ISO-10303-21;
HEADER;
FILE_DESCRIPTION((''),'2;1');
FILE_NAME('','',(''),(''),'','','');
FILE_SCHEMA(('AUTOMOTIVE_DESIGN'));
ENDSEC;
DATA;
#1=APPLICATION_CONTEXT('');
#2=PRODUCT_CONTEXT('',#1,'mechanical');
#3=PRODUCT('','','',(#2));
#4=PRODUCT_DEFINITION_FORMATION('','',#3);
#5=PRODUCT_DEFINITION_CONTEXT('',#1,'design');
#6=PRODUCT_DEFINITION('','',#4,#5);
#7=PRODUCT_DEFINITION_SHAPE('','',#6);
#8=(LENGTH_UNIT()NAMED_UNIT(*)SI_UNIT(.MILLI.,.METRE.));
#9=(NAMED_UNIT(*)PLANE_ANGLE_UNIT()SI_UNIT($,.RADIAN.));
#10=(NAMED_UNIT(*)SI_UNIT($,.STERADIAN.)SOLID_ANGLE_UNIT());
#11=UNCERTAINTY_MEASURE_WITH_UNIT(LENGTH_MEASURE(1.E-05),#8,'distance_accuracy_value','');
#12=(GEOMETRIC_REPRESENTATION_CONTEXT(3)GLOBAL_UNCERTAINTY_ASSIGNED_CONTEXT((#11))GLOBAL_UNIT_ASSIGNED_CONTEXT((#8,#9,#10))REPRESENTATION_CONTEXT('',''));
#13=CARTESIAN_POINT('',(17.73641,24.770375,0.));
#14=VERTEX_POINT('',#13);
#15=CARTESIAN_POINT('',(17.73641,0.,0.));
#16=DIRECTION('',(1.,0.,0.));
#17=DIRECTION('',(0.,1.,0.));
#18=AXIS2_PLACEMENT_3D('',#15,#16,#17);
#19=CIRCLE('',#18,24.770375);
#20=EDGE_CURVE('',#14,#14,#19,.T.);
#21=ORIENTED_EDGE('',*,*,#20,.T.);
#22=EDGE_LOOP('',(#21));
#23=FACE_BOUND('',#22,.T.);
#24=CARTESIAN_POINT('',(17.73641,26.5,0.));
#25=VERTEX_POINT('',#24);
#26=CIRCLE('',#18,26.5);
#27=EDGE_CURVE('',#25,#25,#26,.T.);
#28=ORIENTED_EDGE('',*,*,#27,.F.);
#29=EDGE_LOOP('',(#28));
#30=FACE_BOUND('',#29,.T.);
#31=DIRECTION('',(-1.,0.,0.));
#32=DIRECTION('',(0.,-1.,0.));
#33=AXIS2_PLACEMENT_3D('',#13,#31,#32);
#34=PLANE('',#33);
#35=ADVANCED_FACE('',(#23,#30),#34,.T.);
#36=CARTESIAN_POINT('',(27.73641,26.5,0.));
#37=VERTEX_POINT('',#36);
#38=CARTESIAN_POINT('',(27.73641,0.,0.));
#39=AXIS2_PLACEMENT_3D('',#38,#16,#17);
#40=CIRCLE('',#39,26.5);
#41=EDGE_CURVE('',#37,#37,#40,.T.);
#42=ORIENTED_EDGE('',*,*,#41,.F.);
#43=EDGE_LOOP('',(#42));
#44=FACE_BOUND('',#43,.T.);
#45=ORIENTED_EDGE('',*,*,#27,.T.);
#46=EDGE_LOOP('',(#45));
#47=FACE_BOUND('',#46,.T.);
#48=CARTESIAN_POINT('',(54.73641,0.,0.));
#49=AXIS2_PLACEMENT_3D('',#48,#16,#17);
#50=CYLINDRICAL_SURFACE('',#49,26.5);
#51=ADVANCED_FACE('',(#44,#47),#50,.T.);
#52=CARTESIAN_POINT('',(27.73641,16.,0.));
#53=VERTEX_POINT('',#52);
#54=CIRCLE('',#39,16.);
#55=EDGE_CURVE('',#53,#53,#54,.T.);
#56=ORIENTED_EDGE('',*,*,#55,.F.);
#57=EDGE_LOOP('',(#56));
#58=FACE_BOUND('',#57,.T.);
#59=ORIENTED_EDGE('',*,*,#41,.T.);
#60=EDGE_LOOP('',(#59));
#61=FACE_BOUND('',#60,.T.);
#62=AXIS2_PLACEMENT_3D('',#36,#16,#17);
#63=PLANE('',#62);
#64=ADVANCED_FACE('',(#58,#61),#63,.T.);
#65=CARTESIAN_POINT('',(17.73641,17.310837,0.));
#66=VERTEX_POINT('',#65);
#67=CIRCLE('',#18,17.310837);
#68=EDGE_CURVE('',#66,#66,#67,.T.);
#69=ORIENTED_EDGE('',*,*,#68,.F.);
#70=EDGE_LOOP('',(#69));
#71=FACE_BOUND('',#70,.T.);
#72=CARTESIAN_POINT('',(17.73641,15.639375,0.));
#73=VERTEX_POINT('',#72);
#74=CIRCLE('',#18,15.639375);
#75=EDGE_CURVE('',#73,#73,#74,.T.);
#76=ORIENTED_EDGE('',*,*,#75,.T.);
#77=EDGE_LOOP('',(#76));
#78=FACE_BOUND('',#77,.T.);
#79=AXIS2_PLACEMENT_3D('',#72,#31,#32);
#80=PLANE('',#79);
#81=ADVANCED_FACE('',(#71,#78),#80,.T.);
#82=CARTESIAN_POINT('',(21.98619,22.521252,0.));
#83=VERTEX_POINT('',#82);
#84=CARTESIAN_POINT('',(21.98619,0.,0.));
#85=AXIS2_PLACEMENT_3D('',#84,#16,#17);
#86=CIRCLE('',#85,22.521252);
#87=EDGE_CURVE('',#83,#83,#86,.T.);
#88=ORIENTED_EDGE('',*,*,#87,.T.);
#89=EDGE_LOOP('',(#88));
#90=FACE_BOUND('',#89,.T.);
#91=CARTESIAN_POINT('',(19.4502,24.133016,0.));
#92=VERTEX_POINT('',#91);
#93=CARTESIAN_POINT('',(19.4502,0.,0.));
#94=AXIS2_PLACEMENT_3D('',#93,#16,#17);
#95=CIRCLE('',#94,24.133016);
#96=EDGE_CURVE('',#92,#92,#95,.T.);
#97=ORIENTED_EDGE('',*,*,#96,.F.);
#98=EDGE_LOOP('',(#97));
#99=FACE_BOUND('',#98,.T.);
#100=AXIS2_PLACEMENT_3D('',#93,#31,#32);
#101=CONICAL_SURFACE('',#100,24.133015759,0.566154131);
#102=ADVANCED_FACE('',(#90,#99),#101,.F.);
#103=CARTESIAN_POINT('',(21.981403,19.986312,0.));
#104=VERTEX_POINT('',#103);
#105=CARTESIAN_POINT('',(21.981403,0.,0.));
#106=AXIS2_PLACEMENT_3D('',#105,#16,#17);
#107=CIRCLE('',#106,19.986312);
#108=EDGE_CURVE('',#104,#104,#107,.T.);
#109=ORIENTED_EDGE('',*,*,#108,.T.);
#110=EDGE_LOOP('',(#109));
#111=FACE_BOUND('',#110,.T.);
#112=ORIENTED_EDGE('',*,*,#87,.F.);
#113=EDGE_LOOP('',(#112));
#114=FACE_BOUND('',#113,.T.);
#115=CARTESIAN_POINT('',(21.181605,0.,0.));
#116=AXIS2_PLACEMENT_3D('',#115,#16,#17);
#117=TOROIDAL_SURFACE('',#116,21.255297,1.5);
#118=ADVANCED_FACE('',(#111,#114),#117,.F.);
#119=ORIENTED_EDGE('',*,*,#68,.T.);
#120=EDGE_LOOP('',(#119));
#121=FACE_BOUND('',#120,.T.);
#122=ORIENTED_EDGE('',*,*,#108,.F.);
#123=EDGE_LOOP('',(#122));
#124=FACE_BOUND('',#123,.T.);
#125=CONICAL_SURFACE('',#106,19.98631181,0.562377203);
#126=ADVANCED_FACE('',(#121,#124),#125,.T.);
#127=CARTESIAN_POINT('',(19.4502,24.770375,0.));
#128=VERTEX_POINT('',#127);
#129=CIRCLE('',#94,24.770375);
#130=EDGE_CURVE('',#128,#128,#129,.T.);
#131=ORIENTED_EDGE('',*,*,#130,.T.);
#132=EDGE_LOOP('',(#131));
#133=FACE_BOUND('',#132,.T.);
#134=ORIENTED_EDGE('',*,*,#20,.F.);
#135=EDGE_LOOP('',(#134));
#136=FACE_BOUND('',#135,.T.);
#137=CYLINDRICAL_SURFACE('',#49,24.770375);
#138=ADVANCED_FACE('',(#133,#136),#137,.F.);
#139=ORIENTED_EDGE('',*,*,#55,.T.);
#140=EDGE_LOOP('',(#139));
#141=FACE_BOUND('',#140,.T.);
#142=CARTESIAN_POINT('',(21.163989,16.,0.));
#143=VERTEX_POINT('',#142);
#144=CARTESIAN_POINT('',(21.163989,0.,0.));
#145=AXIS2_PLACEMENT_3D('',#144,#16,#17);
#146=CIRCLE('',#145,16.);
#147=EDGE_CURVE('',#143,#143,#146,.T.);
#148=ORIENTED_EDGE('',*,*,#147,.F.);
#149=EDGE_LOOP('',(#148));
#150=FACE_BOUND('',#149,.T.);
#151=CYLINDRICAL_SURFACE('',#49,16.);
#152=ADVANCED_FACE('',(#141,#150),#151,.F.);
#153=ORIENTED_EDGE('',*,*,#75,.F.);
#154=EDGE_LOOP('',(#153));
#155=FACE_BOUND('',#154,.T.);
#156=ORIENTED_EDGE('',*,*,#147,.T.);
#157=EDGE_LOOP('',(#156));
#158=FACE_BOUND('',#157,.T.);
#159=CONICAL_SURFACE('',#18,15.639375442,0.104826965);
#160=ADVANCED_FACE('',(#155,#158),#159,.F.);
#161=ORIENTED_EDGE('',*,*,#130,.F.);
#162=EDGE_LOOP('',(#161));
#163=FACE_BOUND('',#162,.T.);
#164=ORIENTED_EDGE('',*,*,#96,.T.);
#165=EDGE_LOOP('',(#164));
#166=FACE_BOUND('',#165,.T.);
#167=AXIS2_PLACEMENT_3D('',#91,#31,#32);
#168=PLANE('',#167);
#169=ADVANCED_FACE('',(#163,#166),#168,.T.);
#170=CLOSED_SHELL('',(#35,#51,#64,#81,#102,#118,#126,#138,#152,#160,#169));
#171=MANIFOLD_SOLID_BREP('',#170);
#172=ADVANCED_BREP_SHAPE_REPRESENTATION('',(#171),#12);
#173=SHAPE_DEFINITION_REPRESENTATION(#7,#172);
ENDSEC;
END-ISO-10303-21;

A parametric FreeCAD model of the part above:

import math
import FreeCAD as App
import Part
import Sketcher

doc = App.newDocument("Part")
body = doc.addObject("PartDesign::Body", "Body")

# Sketch on XY plane
sketch1 = body.newObject("Sketcher::SketchObject", "Sketch")
sketch1.AttachmentSupport = (doc.getObject("XY_Plane"), [""])
sketch1.MapMode = "FlatFace"
sketch1.addGeometry([
    Part.LineSegment(App.Vector(27.73641, 26.5, 0), App.Vector(17.73641, 26.5, 0)),  # 0
    Part.LineSegment(App.Vector(17.73641, 26.5, 0), App.Vector(17.73641, 24.770375, 0)),  # 1
    Part.LineSegment(App.Vector(17.73641, 24.770375, 0), App.Vector(19.4502, 24.770375, 0)),  # 2
    Part.LineSegment(App.Vector(19.4502, 24.770375, 0), App.Vector(19.4502, 24.133016, 0)),  # 3
    Part.LineSegment(App.Vector(19.4502, 24.133016, 0), App.Vector(21.98619, 22.521252, 0)),  # 4
    Part.ArcOfCircle(Part.Circle(App.Vector(21.181605, 21.255297, 0), App.Vector(0, 0, 1), 1.5), math.radians(-57.77816), math.radians(57.561758)),  # 5
    Part.LineSegment(App.Vector(21.981403, 19.986312, 0), App.Vector(17.73641, 17.310837, 0)),  # 6
    Part.LineSegment(App.Vector(17.73641, 17.310837, 0), App.Vector(17.73641, 15.639375, 0)),  # 7
    Part.LineSegment(App.Vector(17.73641, 15.639375, 0), App.Vector(21.163989, 16, 0)),  # 8
    Part.LineSegment(App.Vector(21.163989, 16, 0), App.Vector(27.73641, 16, 0)),  # 9
    Part.LineSegment(App.Vector(27.73641, 16, 0), App.Vector(27.73641, 26.5, 0)),  # 10
], False)
sketch1.addConstraint([
    Sketcher.Constraint("Coincident", 0, 2, 1, 1),
    Sketcher.Constraint("Coincident", 1, 2, 2, 1),
    Sketcher.Constraint("Coincident", 2, 2, 3, 1),
    Sketcher.Constraint("Coincident", 3, 2, 4, 1),
    Sketcher.Constraint("Tangent", 4, 2, 5, 2),
    Sketcher.Constraint("Tangent", 5, 1, 6, 1),
    Sketcher.Constraint("Coincident", 6, 2, 7, 1),
    Sketcher.Constraint("Coincident", 7, 2, 8, 1),
    Sketcher.Constraint("Coincident", 8, 2, 9, 1),
    Sketcher.Constraint("Coincident", 9, 2, 10, 1),
    Sketcher.Constraint("Coincident", 10, 2, 0, 1),
    Sketcher.Constraint("Horizontal", 0),
    Sketcher.Constraint("Vertical", 1),
    Sketcher.Constraint("Horizontal", 2),
    Sketcher.Constraint("Vertical", 3),
    Sketcher.Constraint("Vertical", 7),
    Sketcher.Constraint("Horizontal", 9),
    Sketcher.Constraint("Vertical", 10),
    Sketcher.Constraint("Vertical", 1, 2, 6, 2),
    Sketcher.Constraint("Radius", 5, 1.5),
    Sketcher.Constraint("DistanceX", 0, 2, 0, 1, 10.0),
    Sketcher.Constraint("DistanceY", 10, 1, 10, 2, 10.5),
    Sketcher.Constraint("DistanceY", -1, 1, 8, 2, 16.0),
    Sketcher.Constraint("DistanceX", 2, 1, 2, 2, 1.713789),
    Sketcher.Constraint("DistanceX", 9, 1, 9, 2, 6.572421),
    Sketcher.Constraint("DistanceY", 3, 2, 3, 1, 0.637359),
    Sketcher.Constraint("DistanceY", 7, 2, 7, 1, 1.671462),
    Sketcher.Constraint("DistanceX", -1, 1, 2, 2, 19.4502),
    Sketcher.Constraint("DistanceX", 5, 3, 5, 1, 0.799798),
    Sketcher.Constraint("DistanceX", 8, 2, 4, 2, 0.822201),
    Sketcher.Constraint("Distance", 6, 5.017781),
    Sketcher.Constraint("DistanceY", 1, 2, 1, 1, 1.729625),
])
revolution = body.newObject("PartDesign::Revolution", "Revolution")
revolution.Profile = sketch1
revolution.ReferenceAxis = (sketch1, ["H_Axis"])
revolution.Angle = 360

doc.recompute()
